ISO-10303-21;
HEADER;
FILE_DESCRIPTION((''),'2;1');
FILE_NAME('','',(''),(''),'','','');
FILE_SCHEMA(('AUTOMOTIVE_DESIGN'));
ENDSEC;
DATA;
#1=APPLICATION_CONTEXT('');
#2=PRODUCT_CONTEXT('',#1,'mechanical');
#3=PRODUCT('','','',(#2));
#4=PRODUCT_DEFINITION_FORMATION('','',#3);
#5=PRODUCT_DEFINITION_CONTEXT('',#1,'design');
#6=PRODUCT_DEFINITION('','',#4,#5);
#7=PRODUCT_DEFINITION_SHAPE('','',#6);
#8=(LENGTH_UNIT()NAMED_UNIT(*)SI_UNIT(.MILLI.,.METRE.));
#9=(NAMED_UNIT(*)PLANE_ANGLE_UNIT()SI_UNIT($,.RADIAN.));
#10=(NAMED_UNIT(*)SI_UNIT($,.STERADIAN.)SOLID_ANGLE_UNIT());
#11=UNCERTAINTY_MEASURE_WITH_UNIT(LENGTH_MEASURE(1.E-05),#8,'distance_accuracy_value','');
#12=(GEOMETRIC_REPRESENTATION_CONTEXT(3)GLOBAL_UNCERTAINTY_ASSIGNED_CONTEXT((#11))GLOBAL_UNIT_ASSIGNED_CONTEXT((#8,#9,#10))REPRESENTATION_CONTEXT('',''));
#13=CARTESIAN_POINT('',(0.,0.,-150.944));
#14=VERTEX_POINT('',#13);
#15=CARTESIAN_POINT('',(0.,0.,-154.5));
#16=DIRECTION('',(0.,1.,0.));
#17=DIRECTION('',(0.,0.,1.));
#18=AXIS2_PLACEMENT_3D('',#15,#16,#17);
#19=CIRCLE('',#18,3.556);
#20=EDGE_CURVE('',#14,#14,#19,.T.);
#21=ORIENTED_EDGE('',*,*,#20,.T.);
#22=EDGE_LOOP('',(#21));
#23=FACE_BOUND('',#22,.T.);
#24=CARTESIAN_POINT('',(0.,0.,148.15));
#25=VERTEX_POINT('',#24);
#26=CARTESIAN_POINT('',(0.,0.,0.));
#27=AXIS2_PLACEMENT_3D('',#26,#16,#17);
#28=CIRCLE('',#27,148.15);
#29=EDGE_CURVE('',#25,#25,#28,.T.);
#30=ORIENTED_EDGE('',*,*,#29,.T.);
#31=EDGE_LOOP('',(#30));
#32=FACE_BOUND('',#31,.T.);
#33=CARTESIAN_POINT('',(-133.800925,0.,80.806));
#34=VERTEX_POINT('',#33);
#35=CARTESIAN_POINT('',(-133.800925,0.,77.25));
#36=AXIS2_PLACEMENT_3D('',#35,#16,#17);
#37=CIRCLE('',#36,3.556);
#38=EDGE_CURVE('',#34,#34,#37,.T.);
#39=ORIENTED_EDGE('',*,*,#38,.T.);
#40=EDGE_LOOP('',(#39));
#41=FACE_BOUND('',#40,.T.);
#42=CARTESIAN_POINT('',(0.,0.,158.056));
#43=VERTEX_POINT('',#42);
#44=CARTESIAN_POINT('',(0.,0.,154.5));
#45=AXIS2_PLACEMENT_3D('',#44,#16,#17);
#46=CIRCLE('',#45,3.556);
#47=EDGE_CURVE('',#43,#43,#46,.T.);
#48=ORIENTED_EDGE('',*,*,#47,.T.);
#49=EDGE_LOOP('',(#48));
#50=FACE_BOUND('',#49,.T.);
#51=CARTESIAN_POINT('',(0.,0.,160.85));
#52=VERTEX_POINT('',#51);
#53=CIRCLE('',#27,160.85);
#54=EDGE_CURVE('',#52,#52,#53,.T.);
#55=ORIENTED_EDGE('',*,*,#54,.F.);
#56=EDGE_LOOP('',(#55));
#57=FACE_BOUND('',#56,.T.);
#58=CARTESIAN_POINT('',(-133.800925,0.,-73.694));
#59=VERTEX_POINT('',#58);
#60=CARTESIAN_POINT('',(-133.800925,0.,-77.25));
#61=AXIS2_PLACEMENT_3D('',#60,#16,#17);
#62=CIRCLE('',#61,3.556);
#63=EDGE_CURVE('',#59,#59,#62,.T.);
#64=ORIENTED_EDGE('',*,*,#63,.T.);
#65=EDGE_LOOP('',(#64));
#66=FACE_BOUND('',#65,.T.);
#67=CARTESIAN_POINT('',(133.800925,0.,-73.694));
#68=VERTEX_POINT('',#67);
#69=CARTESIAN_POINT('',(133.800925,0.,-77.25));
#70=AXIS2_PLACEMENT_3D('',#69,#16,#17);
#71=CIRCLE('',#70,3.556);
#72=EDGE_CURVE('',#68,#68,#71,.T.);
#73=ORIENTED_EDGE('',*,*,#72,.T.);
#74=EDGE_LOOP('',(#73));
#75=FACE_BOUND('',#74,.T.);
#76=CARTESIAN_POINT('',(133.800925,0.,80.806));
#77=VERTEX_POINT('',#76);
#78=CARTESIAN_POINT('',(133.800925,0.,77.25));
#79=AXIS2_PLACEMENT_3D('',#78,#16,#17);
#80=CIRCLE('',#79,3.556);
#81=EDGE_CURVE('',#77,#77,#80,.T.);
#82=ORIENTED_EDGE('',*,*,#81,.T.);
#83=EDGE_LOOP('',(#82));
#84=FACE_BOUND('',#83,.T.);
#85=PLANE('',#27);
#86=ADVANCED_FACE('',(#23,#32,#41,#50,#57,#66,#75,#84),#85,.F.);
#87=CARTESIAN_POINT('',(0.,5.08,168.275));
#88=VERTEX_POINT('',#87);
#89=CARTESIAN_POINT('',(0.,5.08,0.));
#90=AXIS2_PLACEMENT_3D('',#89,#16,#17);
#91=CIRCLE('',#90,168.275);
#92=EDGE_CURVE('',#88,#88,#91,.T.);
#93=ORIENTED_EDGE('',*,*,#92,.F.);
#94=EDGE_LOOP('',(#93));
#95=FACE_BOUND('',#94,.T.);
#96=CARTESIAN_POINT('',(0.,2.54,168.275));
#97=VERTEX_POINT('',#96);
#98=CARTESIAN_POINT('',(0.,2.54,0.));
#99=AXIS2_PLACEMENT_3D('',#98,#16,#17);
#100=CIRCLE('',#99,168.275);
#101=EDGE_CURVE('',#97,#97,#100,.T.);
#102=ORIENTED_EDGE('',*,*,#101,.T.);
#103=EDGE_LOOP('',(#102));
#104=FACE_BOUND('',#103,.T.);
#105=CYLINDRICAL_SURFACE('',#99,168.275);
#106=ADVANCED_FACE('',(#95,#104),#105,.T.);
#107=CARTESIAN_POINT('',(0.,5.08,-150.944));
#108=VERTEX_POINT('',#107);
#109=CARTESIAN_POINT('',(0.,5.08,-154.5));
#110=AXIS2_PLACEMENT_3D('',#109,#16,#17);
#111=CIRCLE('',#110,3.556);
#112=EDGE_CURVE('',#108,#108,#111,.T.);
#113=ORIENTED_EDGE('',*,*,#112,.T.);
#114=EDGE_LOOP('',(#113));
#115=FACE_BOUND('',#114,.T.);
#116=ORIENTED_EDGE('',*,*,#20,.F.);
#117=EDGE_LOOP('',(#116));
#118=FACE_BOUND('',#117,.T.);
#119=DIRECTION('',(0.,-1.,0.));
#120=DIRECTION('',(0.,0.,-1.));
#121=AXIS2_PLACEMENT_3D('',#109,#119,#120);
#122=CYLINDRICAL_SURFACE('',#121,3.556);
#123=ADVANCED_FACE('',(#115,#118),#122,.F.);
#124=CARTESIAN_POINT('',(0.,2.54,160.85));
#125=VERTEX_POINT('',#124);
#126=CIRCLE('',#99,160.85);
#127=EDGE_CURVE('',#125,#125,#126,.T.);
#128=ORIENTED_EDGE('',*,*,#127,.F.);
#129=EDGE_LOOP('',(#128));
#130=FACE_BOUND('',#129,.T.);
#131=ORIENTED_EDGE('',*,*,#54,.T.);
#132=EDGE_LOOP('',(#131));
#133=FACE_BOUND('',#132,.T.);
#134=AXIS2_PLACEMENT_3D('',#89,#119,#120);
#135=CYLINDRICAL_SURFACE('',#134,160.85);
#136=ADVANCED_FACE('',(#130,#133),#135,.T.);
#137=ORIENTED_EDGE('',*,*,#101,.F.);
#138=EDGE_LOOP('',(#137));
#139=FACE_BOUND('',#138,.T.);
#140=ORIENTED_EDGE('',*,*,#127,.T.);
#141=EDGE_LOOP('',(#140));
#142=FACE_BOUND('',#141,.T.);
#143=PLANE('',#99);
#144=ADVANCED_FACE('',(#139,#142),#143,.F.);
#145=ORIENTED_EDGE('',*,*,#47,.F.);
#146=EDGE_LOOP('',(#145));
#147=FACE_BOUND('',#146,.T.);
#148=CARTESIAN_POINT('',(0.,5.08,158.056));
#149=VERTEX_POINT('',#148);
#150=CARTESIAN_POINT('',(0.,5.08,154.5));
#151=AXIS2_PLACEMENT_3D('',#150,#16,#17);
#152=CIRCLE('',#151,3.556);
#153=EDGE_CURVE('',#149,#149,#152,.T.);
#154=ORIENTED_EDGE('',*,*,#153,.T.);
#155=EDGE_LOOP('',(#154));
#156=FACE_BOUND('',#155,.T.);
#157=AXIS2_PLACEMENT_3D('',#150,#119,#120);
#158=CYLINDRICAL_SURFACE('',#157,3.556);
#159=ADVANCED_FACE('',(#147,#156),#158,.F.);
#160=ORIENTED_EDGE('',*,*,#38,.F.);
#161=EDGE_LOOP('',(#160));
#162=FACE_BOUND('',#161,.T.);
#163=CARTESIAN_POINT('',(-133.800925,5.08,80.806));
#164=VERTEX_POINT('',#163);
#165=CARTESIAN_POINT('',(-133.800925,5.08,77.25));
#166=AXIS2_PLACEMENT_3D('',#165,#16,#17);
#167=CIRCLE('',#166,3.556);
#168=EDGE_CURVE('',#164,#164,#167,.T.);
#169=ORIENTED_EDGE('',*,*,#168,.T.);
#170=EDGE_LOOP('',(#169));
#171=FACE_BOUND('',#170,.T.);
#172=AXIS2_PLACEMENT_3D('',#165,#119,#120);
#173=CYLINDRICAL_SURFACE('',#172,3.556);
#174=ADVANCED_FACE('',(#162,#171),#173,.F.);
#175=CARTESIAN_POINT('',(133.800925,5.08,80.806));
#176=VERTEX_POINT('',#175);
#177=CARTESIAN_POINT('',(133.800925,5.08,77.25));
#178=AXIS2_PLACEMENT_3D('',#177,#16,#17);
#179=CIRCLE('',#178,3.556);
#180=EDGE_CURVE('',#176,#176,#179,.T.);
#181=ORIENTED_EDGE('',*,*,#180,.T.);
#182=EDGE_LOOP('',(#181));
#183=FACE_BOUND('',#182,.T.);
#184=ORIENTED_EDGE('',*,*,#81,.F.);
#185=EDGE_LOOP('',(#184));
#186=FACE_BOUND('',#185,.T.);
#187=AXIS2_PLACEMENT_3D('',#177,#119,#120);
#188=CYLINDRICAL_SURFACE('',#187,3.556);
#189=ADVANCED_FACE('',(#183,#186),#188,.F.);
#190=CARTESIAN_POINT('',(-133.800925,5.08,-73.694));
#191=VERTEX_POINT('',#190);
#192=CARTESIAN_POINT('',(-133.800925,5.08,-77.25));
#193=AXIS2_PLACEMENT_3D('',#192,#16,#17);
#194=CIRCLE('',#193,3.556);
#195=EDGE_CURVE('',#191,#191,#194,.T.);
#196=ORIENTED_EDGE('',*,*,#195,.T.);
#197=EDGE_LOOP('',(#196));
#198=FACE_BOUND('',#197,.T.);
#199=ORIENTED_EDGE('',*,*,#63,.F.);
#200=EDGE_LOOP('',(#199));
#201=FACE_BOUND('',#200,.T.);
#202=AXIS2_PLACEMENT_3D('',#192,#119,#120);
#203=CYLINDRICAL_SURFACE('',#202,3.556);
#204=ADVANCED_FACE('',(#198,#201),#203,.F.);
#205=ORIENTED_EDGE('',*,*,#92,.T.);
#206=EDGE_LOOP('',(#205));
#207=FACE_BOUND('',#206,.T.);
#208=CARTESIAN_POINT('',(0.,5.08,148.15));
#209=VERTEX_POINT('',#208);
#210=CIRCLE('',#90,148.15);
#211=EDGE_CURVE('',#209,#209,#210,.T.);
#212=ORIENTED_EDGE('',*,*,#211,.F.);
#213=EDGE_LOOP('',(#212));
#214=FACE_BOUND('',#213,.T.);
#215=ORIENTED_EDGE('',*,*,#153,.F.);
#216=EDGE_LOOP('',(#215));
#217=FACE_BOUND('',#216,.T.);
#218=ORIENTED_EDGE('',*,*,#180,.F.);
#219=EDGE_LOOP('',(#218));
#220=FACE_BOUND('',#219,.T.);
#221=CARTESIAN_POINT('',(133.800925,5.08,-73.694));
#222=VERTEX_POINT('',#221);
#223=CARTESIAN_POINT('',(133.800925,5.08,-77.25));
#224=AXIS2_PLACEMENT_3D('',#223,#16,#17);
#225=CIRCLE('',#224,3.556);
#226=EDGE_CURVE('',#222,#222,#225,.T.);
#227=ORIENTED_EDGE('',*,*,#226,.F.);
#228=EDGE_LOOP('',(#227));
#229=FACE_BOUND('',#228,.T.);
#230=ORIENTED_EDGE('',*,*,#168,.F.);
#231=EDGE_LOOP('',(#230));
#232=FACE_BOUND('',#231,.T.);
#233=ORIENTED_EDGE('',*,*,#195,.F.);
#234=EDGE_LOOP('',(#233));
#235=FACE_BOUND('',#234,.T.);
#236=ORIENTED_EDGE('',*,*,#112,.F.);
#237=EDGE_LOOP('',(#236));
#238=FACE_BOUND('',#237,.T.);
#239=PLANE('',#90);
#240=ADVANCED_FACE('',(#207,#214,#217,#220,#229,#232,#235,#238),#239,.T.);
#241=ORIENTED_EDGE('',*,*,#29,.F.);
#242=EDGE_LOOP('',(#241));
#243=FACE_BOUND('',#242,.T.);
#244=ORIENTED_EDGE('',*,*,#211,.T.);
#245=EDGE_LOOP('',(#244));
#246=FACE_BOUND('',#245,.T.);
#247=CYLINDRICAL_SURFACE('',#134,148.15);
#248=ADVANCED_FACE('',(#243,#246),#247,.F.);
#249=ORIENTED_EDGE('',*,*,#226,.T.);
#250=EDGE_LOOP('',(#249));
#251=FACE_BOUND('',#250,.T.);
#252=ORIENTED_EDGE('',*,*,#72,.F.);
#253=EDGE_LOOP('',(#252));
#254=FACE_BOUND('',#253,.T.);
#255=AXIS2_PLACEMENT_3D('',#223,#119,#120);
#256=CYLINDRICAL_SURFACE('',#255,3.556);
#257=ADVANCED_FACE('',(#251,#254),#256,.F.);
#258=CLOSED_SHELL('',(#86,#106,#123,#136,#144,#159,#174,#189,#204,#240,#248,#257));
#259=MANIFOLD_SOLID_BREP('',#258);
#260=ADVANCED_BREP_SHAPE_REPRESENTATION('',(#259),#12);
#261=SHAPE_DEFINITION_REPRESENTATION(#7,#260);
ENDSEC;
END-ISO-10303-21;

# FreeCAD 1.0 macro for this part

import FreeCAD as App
import Part
import Sketcher
from FreeCAD import Vector
Q = App.Units.Quantity

doc = App.newDocument("Part")
body = doc.addObject("PartDesign::Body", "Body")

# Sketch on XZ plane
sketch1 = body.newObject("Sketcher::SketchObject", "Sketch")
sketch1.AttachmentSupport = (doc.getObject("XZ_Plane"), [""])
sketch1.MapMode = "FlatFace"
sketch1.addGeometry([
    Part.Circle(Vector(0, 0, 0), Vector(0, 0, 1), 160.8),  # 0
    Part.Circle(Vector(-133.8, 77.2, 0), Vector(0, 0, 1), 3.6),  # 1
    Part.Circle(Vector(0, 154.5, 0), Vector(0, 0, 1), 3.6),  # 2
    Part.Circle(Vector(133.8, 77.2, 0), Vector(0, 0, 1), 3.6),  # 3
    Part.Circle(Vector(-133.8, -77.2, 0), Vector(0, 0, 1), 3.6),  # 4
    Part.Circle(Vector(0, 0, 0), Vector(0, 0, 1), 148.2),  # 5
    Part.Circle(Vector(133.8, -77.2, 0), Vector(0, 0, 1), 3.6),  # 6
    Part.Circle(Vector(0, -154.5, 0), Vector(0, 0, 1), 3.6),  # 7
], False)
sketch1.addConstraint([
    Sketcher.Constraint("Coincident", 0, 3, -1, 1),
    Sketcher.Constraint("Coincident", 5, 3, -1, 1),
    Sketcher.Constraint("Equal", 1, 2),
    Sketcher.Constraint("Equal", 2, 3),
    Sketcher.Constraint("Equal", 3, 4),
    Sketcher.Constraint("Equal", 4, 6),
    Sketcher.Constraint("Equal", 6, 7),
    Sketcher.Constraint("Symmetric", 3, 3, 4, 3, -1, 1),
    Sketcher.Constraint("Symmetric", 1, 3, 6, 3, -1, 1),
    Sketcher.Constraint("Symmetric", 2, 3, 7, 3, -1, 1),
    Sketcher.Constraint("Symmetric", 1, 3, 3, 3, -2),
    Sketcher.Constraint("PointOnObject", 2, 3, -2),
    Sketcher.Constraint("Diameter", 1, Q("0.28 in")),
    Sketcher.Constraint("Diameter", 0, 321.7),
    Sketcher.Constraint("Diameter", 5, 296.3),
    Sketcher.Constraint("DistanceY", -1, 1, 1, 3, 77.25),
    Sketcher.Constraint("DistanceY", -1, 1, 2, 3, 154.5),
    Sketcher.Constraint("DistanceX", 1, 3, 3, 3, 267.60185),
])
pad1 = body.newObject("PartDesign::Pad", "Pad")
pad1.Profile = sketch1
pad1.Length = Q("0.2 in")
pad1.Reversed = True

# Sketch on XZ plane
sketch2 = body.newObject("Sketcher::SketchObject", "Sketch001")
sketch2.AttachmentSupport = (doc.getObject("XZ_Plane"), [""])
sketch2.MapMode = "FlatFace"
sketch2.AttachmentOffset = App.Placement(Vector(0, 0, -0.2 * 25.4), App.Rotation())
sketch2.addGeometry([
    Part.Circle(Vector(0, 0, 0), Vector(0, 0, 1), 168),
    Part.Circle(Vector(0, 0, 0), Vector(0, 0, 1), 161),
], False)
sketch2.addConstraint([
    Sketcher.Constraint("Coincident", 0, 3, -1, 1),
    Sketcher.Constraint("Coincident", 1, 3, -1, 1),
    Sketcher.Constraint("Diameter", 0, Q("13.25 in")),
    Sketcher.Constraint("Diameter", 1, 321.7),
])
pad2 = body.newObject("PartDesign::Pad", "Pad001")
pad2.Profile = sketch2
pad2.Length = Q("0.1 in")

doc.recompute()
